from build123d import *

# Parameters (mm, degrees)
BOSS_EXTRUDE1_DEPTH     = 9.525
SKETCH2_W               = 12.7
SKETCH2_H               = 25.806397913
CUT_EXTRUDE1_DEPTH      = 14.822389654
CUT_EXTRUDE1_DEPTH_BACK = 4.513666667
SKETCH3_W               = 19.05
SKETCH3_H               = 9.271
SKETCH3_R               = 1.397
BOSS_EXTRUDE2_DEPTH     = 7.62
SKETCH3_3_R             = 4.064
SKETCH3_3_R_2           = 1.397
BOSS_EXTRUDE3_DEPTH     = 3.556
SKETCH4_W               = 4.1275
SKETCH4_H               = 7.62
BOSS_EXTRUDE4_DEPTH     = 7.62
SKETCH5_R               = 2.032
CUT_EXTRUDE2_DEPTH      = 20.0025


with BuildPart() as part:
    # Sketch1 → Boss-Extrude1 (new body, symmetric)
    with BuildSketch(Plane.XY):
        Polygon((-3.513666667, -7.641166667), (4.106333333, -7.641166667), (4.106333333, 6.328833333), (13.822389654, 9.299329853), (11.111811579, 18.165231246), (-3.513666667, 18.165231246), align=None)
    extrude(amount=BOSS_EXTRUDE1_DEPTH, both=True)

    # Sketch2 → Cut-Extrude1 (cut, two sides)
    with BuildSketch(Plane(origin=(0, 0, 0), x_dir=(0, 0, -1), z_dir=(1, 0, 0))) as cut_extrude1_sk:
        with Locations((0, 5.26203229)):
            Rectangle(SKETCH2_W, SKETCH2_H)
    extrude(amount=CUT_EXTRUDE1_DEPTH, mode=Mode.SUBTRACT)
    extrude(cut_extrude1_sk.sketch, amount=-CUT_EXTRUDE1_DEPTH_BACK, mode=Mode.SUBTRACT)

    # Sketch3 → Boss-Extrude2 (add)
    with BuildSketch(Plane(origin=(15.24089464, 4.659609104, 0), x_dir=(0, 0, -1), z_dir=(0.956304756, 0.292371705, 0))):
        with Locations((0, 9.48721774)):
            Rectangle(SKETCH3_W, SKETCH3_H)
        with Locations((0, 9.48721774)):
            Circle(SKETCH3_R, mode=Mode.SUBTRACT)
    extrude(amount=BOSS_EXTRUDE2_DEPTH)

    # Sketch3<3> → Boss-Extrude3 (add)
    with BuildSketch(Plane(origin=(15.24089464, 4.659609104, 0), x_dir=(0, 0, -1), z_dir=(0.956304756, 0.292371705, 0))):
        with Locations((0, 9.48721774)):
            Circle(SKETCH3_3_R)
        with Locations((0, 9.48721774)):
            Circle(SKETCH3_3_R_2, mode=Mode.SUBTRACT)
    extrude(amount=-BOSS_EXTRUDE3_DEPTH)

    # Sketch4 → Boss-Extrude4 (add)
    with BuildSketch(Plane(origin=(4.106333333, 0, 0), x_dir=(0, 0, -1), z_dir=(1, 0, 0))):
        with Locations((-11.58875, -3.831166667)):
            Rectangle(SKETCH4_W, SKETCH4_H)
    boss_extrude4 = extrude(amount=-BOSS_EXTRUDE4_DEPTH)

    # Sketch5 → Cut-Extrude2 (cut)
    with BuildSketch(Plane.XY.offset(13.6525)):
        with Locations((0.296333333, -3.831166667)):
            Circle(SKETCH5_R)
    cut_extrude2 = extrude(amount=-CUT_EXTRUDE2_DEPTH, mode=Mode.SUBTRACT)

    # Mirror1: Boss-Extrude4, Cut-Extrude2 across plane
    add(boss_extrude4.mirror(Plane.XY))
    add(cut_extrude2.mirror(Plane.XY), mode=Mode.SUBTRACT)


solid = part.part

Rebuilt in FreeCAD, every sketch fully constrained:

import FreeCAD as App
import Part
import Sketcher
Q = App.Units.Quantity

doc = App.newDocument("Part")
params = doc.addObject("Spreadsheet::Sheet", "Params")
for row, (alias, value) in enumerate([
    ("sketch1_width", "0.3 in"),
    ("sketch1_length", "0.4 in"),
    ("sketch1_height", "0.55 in"),
    ("sketch1_height2", "1.0159999 in"),
    ("pad1_length", "0.75 in"),
    ("sketch2_height", "0.5 in"),
    ("sketch2_width", "1.0159999 in"),
    ("sketch3_diameter", "0.11 in"),
    ("sketch3_width", "0.75 in"),
    ("sketch3_height", "0.365 in"),
    ("pad2_length", "0.3 in"),
    ("sketch4_diameter", "0.32 in"),
    ("sketch4_diameter2", "0.11 in"),
    ("pad3_length", "0.14 in"),
    ("sketch5_width", "0.3 in"),
    ("pad4_length", "0.3 in"),
    ("sketch6_diameter", "0.16 in"),
    ("pocket2_length", "0.7875 in"),
], start=1):
    params.set(f"A{row}", alias)
    params.set(f"B{row}", "=" + value)
    params.setAlias(f"B{row}", alias)

body = doc.addObject("PartDesign::Body", "Body")
body.AllowCompound = True

# Sketch on XY plane
sketch1 = body.newObject("Sketcher::SketchObject", "Sketch")
sketch1.AttachmentSupport = (doc.getObject("XY_Plane"), [""])
sketch1.MapMode = "FlatFace"
sketch1.addGeometry(Part.LineSegment(App.Vector(-4, -8, 0), App.Vector(4, -8, 0)), False)
sketch1.addGeometry(Part.LineSegment(App.Vector(4, -8, 0), App.Vector(4, 6, 0)), False)
sketch1.addGeometry(Part.LineSegment(App.Vector(4, 6, 0), App.Vector(14, 9, 0)), False)
sketch1.addGeometry(Part.LineSegment(App.Vector(14, 9, 0), App.Vector(11, 18, 0)), False)
sketch1.addGeometry(Part.LineSegment(App.Vector(11, 18, 0), App.Vector(-4, 18, 0)), False)
sketch1.addGeometry(Part.LineSegment(App.Vector(-4, 18, 0), App.Vector(-4, -8, 0)), False)
sketch1.addConstraint(Sketcher.Constraint("Coincident", 0, 2, 1, 1))
sketch1.addConstraint(Sketcher.Constraint("Coincident", 1, 2, 2, 1))
sketch1.addConstraint(Sketcher.Constraint("Coincident", 2, 2, 3, 1))
sketch1.addConstraint(Sketcher.Constraint("Coincident", 3, 2, 4, 1))
sketch1.addConstraint(Sketcher.Constraint("Coincident", 4, 2, 5, 1))
sketch1.addConstraint(Sketcher.Constraint("Coincident", 5, 2, 0, 1))
sketch1.addConstraint(Sketcher.Constraint("Horizontal", 0))
sketch1.addConstraint(Sketcher.Constraint("Vertical", 1))
sketch1.addConstraint(Sketcher.Constraint("Horizontal", 4))
sketch1.addConstraint(Sketcher.Constraint("Vertical", 5))
sketch1.addConstraint(Sketcher.Constraint("Perpendicular", 2, 3))
sketch1.addConstraint(Sketcher.Constraint("DistanceX", 0, 1, 0, 2, Q("0.3 in")))
sketch1.addConstraint(Sketcher.Constraint("Angle", 2, Q("17 deg")))
sketch1.addConstraint(Sketcher.Constraint("Distance", 2, Q("0.4 in")))
sketch1.addConstraint(Sketcher.Constraint("DistanceY", 1, 1, 1, 2, Q("0.55 in")))
sketch1.addConstraint(Sketcher.Constraint("DistanceY", 5, 2, 5, 1, Q("1.0159999 in")))
sketch1.addConstraint(Sketcher.Constraint("DistanceX", -1, 1, 2, 2, 13.82239))
sketch1.addConstraint(Sketcher.Constraint("DistanceY", -1, 1, 2, 2, 9.29933))
sketch1.setExpression("Constraints[11]", "Params.sketch1_width")
sketch1.setExpression("Constraints[13]", "Params.sketch1_length")
sketch1.setExpression("Constraints[14]", "Params.sketch1_height")
sketch1.setExpression("Constraints[15]", "Params.sketch1_height2")
pad1 = body.newObject("PartDesign::Pad", "Pad")
pad1.Profile = sketch1
pad1.setExpression("Length", "Params.pad1_length")
pad1.Midplane = True

# Sketch on YZ plane
sketch2 = body.newObject("Sketcher::SketchObject", "Sketch001")
sketch2.AttachmentSupport = (doc.getObject("YZ_Plane"), [""])
sketch2.MapMode = "FlatFace"
sketch2.addGeometry(Part.LineSegment(App.Vector(18, 6, 0), App.Vector(-8, 6, 0)), False)
sketch2.addGeometry(Part.LineSegment(App.Vector(-8, 6, 0), App.Vector(-8, -6, 0)), False)
sketch2.addGeometry(Part.LineSegment(App.Vector(-8, -6, 0), App.Vector(18, -6, 0)), False)
sketch2.addGeometry(Part.LineSegment(App.Vector(18, -6, 0), App.Vector(18, 6, 0)), False)
sketch2.addConstraint(Sketcher.Constraint("Coincident", 0, 2, 1, 1))
sketch2.addConstraint(Sketcher.Constraint("Coincident", 1, 2, 2, 1))
sketch2.addConstraint(Sketcher.Constraint("Coincident", 2, 2, 3, 1))
sketch2.addConstraint(Sketcher.Constraint("Coincident", 3, 2, 0, 1))
sketch2.addConstraint(Sketcher.Constraint("Horizontal", 0))
sketch2.addConstraint(Sketcher.Constraint("Vertical", 1))
sketch2.addConstraint(Sketcher.Constraint("Horizontal", 2))
sketch2.addConstraint(Sketcher.Constraint("Vertical", 3))
sketch2.addConstraint(Sketcher.Constraint("DistanceY", 1, 2, 1, 1, Q("0.5 in")))
sketch2.addConstraint(Sketcher.Constraint("DistanceX", 0, 2, 0, 1, Q("1.0159999 in")))
sketch2.addConstraint(Sketcher.Constraint("DistanceY", -1, 1, 0, 2, Q("0.25 in")))
sketch2.addConstraint(Sketcher.Constraint("DistanceX", -1, 1, 2, 2, 18.165231))
sketch2.setExpression("Constraints[8]", "Params.sketch2_height")
sketch2.setExpression("Constraints[9]", "Params.sketch2_width")
pocket1 = body.newObject("PartDesign::Pocket", "Pocket")
pocket1.Profile = sketch2
pocket1.Type = "ThroughAll"
pocket1.Midplane = True

# Sketch on an angled plane
sketch3 = body.newObject("Sketcher::SketchObject", "Sketch002")
sketch3.Placement = App.Placement(App.Vector(15.240895, 4.659609, 0), App.Rotation(App.Vector(0, 0, -1), App.Vector(-0.292371705, 0.956304756, 0), App.Vector(0.956304756, 0.292371705, 0), "ZXY"))
sketch3.addGeometry(Part.LineSegment(App.Vector(-9.5, 14.1, 0), App.Vector(-9.5, 4.9, 0)), False)
sketch3.addGeometry(Part.LineSegment(App.Vector(-9.5, 4.9, 0), App.Vector(9.5, 4.9, 0)), False)
sketch3.addGeometry(Part.LineSegment(App.Vector(9.5, 4.9, 0), App.Vector(9.5, 14.1, 0)), False)
sketch3.addGeometry(Part.LineSegment(App.Vector(9.5, 14.1, 0), App.Vector(-9.5, 14.1, 0)), False)
sketch3.addGeometry(Part.Circle(App.Vector(0, 9.5, 0), App.Vector(0, 0, 1), 1.4), False)
sketch3.addConstraint(Sketcher.Constraint("Coincident", 0, 2, 1, 1))
sketch3.addConstraint(Sketcher.Constraint("Coincident", 1, 2, 2, 1))
sketch3.addConstraint(Sketcher.Constraint("Coincident", 2, 2, 3, 1))
sketch3.addConstraint(Sketcher.Constraint("Coincident", 3, 2, 0, 1))
sketch3.addConstraint(Sketcher.Constraint("Vertical", 0))
sketch3.addConstraint(Sketcher.Constraint("Horizontal", 1))
sketch3.addConstraint(Sketcher.Constraint("Vertical", 2))
sketch3.addConstraint(Sketcher.Constraint("Horizontal", 3))
sketch3.addConstraint(Sketcher.Constraint("PointOnObject", 4, 3, -2))
sketch3.addConstraint(Sketcher.Constraint("Diameter", 4, Q("0.11 in")))
sketch3.addConstraint(Sketcher.Constraint("DistanceX", 1, 1, 1, 2, Q("0.75 in")))
sketch3.addConstraint(Sketcher.Constraint("DistanceY", 0, 2, 0, 1, Q("0.365 in")))
sketch3.addConstraint(Sketcher.Constraint("DistanceX", 0, 2, -1, 1, Q("0.375 in")))
sketch3.addConstraint(Sketcher.Constraint("DistanceY", 0, 2, 4, 3, Q("0.1825 in")))
sketch3.addConstraint(Sketcher.Constraint("DistanceY", -1, 1, 4, 3, 9.487218))
sketch3.setExpression("Constraints[9]", "Params.sketch3_diameter")
sketch3.setExpression("Constraints[10]", "Params.sketch3_width")
sketch3.setExpression("Constraints[11]", "Params.sketch3_height")
pad2 = body.newObject("PartDesign::Pad", "Pad001")
pad2.Profile = sketch3
pad2.setExpression("Length", "Params.pad2_length")

# Sketch on an angled plane
sketch4 = body.newObject("Sketcher::SketchObject", "Sketch003")
sketch4.Placement = App.Placement(App.Vector(15.240895, 4.659609, 0), App.Rotation(App.Vector(0, 0, -1), App.Vector(-0.292371705, 0.956304756, 0), App.Vector(0.956304756, 0.292371705, 0), "ZXY"))
sketch4.addGeometry(Part.Circle(App.Vector(0, 9.5, 0), App.Vector(0, 0, 1), 4.1), False)
sketch4.addGeometry(Part.Circle(App.Vector(0, 9.5, 0), App.Vector(0, 0, 1), 1.4), False)
sketch4.addConstraint(Sketcher.Constraint("Coincident", 1, 3, 0, 3))
sketch4.addConstraint(Sketcher.Constraint("PointOnObject", 0, 3, -2))
sketch4.addConstraint(Sketcher.Constraint("Diameter", 0, Q("0.32 in")))
sketch4.addConstraint(Sketcher.Constraint("Diameter", 1, Q("0.11 in")))
sketch4.addConstraint(Sketcher.Constraint("DistanceY", -1, 1, 0, 3, 9.487218))
sketch4.setExpression("Constraints[2]", "Params.sketch4_diameter")
sketch4.setExpression("Constraints[3]", "Params.sketch4_diameter2")
pad3 = body.newObject("PartDesign::Pad", "Pad002")
pad3.Profile = sketch4
pad3.setExpression("Length", "Params.pad3_length")
pad3.Reversed = True

# Sketch on YZ plane
sketch5 = body.newObject("Sketcher::SketchObject", "Sketch004")
sketch5.AttachmentSupport = (doc.getObject("YZ_Plane"), [""])
sketch5.MapMode = "FlatFace"
sketch5.AttachmentOffset = App.Placement(App.Vector(0, 0, 4.106333), App.Rotation())
sketch5.addGeometry(Part.LineSegment(App.Vector(0, 13.7, 0), App.Vector(-7.6, 13.7, 0)), False)
sketch5.addGeometry(Part.LineSegment(App.Vector(-7.6, 13.7, 0), App.Vector(-7.6, 9.5, 0)), False)
sketch5.addGeometry(Part.LineSegment(App.Vector(-7.6, 9.5, 0), App.Vector(0, 9.5, 0)), False)
sketch5.addGeometry(Part.LineSegment(App.Vector(0, 9.5, 0), App.Vector(0, 13.7, 0)), False)
sketch5.addConstraint(Sketcher.Constraint("Coincident", 0, 2, 1, 1))
sketch5.addConstraint(Sketcher.Constraint("Coincident", 1, 2, 2, 1))
sketch5.addConstraint(Sketcher.Constraint("Coincident", 2, 2, 3, 1))
sketch5.addConstraint(Sketcher.Constraint("Coincident", 3, 2, 0, 1))
sketch5.addConstraint(Sketcher.Constraint("Horizontal", 0))
sketch5.addConstraint(Sketcher.Constraint("Vertical", 1))
sketch5.addConstraint(Sketcher.Constraint("Horizontal", 2))
sketch5.addConstraint(Sketcher.Constraint("Vertical", 3))
sketch5.addConstraint(Sketcher.Constraint("DistanceX", 0, 2, 0, 1, Q("0.3 in")))
sketch5.addConstraint(Sketcher.Constraint("DistanceY", 1, 2, 1, 1, Q("0.1625 in")))
sketch5.addConstraint(Sketcher.Constraint("DistanceY", -1, 1, 1, 2, Q("0.375 in")))
sketch5.addConstraint(Sketcher.Constraint("DistanceX", 0, 2, -1, 1, 7.641167))
sketch5.setExpression("Constraints[8]", "Params.sketch5_width")
pad4 = body.newObject("PartDesign::Pad", "Pad003")
pad4.Profile = sketch5
pad4.setExpression("Length", "Params.pad4_length")
pad4.Reversed = True

# Sketch on XY plane
sketch6 = body.newObject("Sketcher::SketchObject", "Sketch005")
sketch6.AttachmentSupport = (doc.getObject("XY_Plane"), [""])
sketch6.MapMode = "FlatFace"
sketch6.AttachmentOffset = App.Placement(App.Vector(0, 0, 0.5375 * 25.4), App.Rotation())
sketch6.addGeometry(Part.Circle(App.Vector(0.3, -3.8, 0), App.Vector(0, 0, 1), 2), False)
sketch6.addConstraint(Sketcher.Constraint("Diameter", 0, Q("0.16 in")))
sketch6.addConstraint(Sketcher.Constraint("DistanceX", -1, 1, 0, 3, 0.296333))
sketch6.addConstraint(Sketcher.Constraint("DistanceY", 0, 3, -1, 1, 3.831167))
sketch6.setExpression("Constraints[0]", "Params.sketch6_diameter")
pocket2 = body.newObject("PartDesign::Pocket", "Pocket001")
pocket2.Profile = sketch6
pocket2.setExpression("Length", "Params.pocket2_length")
doc.recompute()

mirrored = body.newObject("PartDesign::Mirrored", "Mirrored")
mirrored.Originals = [pad4, pocket2]
mirrored.MirrorPlane = (doc.getObject("XY_Plane"), [""])
body.Tip = mirrored

doc.recompute()
